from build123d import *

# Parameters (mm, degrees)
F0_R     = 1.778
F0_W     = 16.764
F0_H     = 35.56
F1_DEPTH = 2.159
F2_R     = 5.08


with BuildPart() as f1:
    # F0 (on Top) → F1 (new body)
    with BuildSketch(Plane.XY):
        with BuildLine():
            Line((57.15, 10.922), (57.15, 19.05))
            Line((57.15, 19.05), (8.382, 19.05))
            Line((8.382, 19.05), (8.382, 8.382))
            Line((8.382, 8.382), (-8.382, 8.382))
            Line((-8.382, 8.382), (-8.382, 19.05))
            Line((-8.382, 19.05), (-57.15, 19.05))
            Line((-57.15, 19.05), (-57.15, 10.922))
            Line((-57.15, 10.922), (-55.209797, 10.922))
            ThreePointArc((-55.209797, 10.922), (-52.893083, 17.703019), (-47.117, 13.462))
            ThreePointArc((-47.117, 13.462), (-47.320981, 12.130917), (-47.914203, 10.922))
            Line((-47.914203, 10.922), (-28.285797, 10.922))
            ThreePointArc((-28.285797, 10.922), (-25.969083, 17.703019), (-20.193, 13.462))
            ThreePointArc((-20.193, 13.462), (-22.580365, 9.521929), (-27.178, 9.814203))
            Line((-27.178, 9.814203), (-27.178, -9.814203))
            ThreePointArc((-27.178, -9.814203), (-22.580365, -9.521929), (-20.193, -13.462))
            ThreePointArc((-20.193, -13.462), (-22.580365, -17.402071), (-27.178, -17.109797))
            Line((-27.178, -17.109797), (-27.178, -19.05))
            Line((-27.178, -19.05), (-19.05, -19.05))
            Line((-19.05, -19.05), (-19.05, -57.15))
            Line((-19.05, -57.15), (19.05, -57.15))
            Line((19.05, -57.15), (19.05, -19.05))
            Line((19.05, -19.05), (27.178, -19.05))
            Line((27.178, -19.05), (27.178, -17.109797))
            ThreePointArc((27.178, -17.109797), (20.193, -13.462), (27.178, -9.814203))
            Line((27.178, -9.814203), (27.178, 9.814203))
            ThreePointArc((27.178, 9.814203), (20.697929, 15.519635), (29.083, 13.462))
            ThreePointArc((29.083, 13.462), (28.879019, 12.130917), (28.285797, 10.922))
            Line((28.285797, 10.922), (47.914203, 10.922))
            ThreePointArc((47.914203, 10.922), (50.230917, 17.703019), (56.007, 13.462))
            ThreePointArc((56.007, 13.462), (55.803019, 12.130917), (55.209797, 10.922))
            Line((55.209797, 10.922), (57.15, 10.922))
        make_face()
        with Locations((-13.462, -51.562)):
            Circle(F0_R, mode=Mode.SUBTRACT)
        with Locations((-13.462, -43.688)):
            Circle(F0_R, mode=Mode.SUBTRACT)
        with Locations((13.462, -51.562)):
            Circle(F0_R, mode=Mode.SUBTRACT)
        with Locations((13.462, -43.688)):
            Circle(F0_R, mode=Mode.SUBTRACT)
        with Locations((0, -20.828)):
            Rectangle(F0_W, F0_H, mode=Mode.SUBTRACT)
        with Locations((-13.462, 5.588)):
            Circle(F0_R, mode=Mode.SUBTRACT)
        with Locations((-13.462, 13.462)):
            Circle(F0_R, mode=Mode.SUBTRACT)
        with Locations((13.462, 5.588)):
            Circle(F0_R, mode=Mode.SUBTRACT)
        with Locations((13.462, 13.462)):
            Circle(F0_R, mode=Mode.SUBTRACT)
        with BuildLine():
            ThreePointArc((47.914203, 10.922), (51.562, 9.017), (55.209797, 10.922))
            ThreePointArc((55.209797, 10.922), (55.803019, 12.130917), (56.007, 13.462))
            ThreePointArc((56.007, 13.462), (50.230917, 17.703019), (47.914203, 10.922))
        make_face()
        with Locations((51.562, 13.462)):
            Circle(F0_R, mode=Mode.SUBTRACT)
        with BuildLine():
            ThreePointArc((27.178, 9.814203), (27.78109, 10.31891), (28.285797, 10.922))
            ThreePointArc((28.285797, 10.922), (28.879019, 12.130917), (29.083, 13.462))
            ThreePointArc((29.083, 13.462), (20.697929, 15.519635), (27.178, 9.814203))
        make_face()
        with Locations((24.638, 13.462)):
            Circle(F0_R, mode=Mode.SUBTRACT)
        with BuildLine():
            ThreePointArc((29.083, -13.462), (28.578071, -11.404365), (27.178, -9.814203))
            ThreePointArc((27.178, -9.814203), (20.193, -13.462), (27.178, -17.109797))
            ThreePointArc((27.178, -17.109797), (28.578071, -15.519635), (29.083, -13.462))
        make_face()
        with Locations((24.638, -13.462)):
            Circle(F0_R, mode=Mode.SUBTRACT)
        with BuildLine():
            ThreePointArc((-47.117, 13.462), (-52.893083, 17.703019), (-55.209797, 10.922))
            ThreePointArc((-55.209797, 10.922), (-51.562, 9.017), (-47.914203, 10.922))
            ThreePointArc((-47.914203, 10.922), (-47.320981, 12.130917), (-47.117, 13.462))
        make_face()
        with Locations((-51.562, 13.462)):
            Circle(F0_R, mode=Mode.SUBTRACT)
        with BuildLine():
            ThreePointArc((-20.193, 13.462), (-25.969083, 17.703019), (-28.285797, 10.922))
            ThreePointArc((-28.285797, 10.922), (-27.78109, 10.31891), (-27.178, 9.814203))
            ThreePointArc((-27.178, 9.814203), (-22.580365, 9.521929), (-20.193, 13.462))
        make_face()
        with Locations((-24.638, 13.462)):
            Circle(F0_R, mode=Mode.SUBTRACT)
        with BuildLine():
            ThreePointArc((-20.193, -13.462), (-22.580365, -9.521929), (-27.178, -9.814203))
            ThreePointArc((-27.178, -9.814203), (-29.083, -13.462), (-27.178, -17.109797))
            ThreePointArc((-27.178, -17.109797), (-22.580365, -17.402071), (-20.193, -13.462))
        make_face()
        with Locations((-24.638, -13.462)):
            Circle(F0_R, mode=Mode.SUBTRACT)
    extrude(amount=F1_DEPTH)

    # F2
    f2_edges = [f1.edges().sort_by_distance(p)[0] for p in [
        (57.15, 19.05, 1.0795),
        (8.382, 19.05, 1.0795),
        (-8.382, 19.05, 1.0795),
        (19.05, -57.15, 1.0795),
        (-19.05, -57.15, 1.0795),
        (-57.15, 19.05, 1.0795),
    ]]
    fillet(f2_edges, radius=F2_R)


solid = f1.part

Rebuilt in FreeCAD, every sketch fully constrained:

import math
import FreeCAD as App
import Part
import Sketcher
from FreeCAD import Vector
Q = App.Units.Quantity


def edges_at(feature, points):
    """Names of the edges that pass closest to the given points."""
    edges = feature.Shape.Edges
    near = lambda p: min(range(len(edges)), key=lambda i: edges[i].distToShape(Part.Vertex(*p))[0])
    return sorted({f"Edge{near(p) + 1}" for p in points})


def add_polygon(sketch, points):
    """Adds a closed chain of lines whose ends are joined by coincident constraints."""
    first, n = sketch.GeometryCount, len(points)
    for a, b in zip(points, points[1:] + points[:1]):
        sketch.addGeometry(Part.LineSegment(App.Vector(*a, 0), App.Vector(*b, 0)), False)
    for i in range(n):
        sketch.addConstraint(Sketcher.Constraint("Coincident", first + i, 2, first + (i + 1) % n, 1))

doc = App.newDocument("Part")
body = doc.addObject("PartDesign::Body", "Body")

sketch1 = body.newObject("Sketcher::SketchObject", "Sketch")
sketch1.AttachmentSupport = (doc.getObject("XY_Plane"), [""])
sketch1.MapMode = "FlatFace"
sketch1.addGeometry(Part.LineSegment(Vector(57.1, 10.9, 0), Vector(57.1, 19.1, 0)), False)
sketch1.addGeometry(Part.LineSegment(Vector(57.1, 19.1, 0), Vector(8.4, 19.1, 0)), False)
sketch1.addGeometry(Part.LineSegment(Vector(8.4, 19.1, 0), Vector(8.4, 8.4, 0)), False)
sketch1.addGeometry(Part.LineSegment(Vector(8.4, 8.4, 0), Vector(-8.4, 8.4, 0)), False)
sketch1.addGeometry(Part.LineSegment(Vector(-8.4, 8.4, 0), Vector(-8.4, 19.1, 0)), False)
sketch1.addGeometry(Part.LineSegment(Vector(-8.4, 19.1, 0), Vector(-57.1, 19.1, 0)), False)
sketch1.addGeometry(Part.LineSegment(Vector(-57.1, 19.1, 0), Vector(-57.1, 10.9, 0)), False)
sketch1.addGeometry(Part.LineSegment(Vector(-57.1, 10.9, 0), Vector(-55.2, 10.9, 0)), False)
sketch1.addGeometry(Part.ArcOfCircle(Part.Circle(Vector(-51.6, 13.5, 0), Vector(0, 0, 1), 4.4), math.radians(-145), math.radians(-35)), False)
sketch1.addGeometry(Part.LineSegment(Vector(-47.9, 10.9, 0), Vector(-28.3, 10.9, 0)), False)
sketch1.addGeometry(Part.ArcOfCircle(Part.Circle(Vector(-24.6, 13.5, 0), Vector(0, 0, 1), 4.4), math.radians(-145), math.radians(-125)), False)
sketch1.addGeometry(Part.LineSegment(Vector(-27.2, 9.8, 0), Vector(-27.2, -9.8, 0)), False)
sketch1.addGeometry(Part.ArcOfCircle(Part.Circle(Vector(-24.6, -13.5, 0), Vector(0, 0, 1), 4.4), math.radians(125), math.radians(235)), False)
sketch1.addGeometry(Part.LineSegment(Vector(-27.2, -17.1, 0), Vector(-27.2, -19.1, 0)), False)
sketch1.addGeometry(Part.LineSegment(Vector(-27.2, -19.1, 0), Vector(-19.1, -19.1, 0)), False)
sketch1.addGeometry(Part.LineSegment(Vector(-19.1, -19.1, 0), Vector(-19.1, -57.1, 0)), False)
sketch1.addGeometry(Part.LineSegment(Vector(-19.1, -57.1, 0), Vector(19.1, -57.1, 0)), False)
sketch1.addGeometry(Part.LineSegment(Vector(19.1, -57.1, 0), Vector(19.1, -19.1, 0)), False)
sketch1.addGeometry(Part.LineSegment(Vector(19.1, -19.1, 0), Vector(27.2, -19.1, 0)), False)
sketch1.addGeometry(Part.LineSegment(Vector(27.2, -19.1, 0), Vector(27.2, -17.1, 0)), False)
sketch1.addGeometry(Part.ArcOfCircle(Part.Circle(Vector(24.6, -13.5, 0), Vector(0, 0, 1), 4.4), math.radians(-55), math.radians(0)), False)
sketch1.addGeometry(Part.ArcOfCircle(Part.Circle(Vector(24.6, -13.5, 0), Vector(0, 0, 1), 4.4), math.radians(0), math.radians(55)), False)
sketch1.addGeometry(Part.LineSegment(Vector(27.2, -9.8, 0), Vector(27.2, 9.8, 0)), False)
sketch1.addGeometry(Part.ArcOfCircle(Part.Circle(Vector(24.6, 13.5, 0), Vector(0, 0, 1), 4.4), math.radians(-55), math.radians(-35)), False)
sketch1.addGeometry(Part.LineSegment(Vector(28.3, 10.9, 0), Vector(47.9, 10.9, 0)), False)
sketch1.addGeometry(Part.ArcOfCircle(Part.Circle(Vector(51.6, 13.5, 0), Vector(0, 0, 1), 4.4), math.radians(-145), math.radians(-35)), False)
sketch1.addGeometry(Part.LineSegment(Vector(55.2, 10.9, 0), Vector(57.1, 10.9, 0)), False)
sketch1.addGeometry(Part.Circle(Vector(-13.5, -51.6, 0), Vector(0, 0, 1), 1.8), False)
sketch1.addGeometry(Part.Circle(Vector(-13.5, -43.7, 0), Vector(0, 0, 1), 1.8), False)
sketch1.addGeometry(Part.Circle(Vector(13.5, -51.6, 0), Vector(0, 0, 1), 1.8), False)
sketch1.addGeometry(Part.Circle(Vector(13.5, -43.7, 0), Vector(0, 0, 1), 1.8), False)
add_polygon(sketch1, [(8.4, -38.6), (-8.4, -38.6), (-8.4, -3), (8.4, -3)])
sketch1.addGeometry(Part.Circle(Vector(-24.6, -13.5, 0), Vector(0, 0, 1), 1.8), False)
sketch1.addGeometry(Part.Circle(Vector(-51.6, 13.5, 0), Vector(0, 0, 1), 1.8), False)
sketch1.addGeometry(Part.Circle(Vector(-13.5, 5.6, 0), Vector(0, 0, 1), 1.8), False)
sketch1.addGeometry(Part.Circle(Vector(-24.6, 13.5, 0), Vector(0, 0, 1), 1.8), False)
sketch1.addGeometry(Part.Circle(Vector(-13.5, 13.5, 0), Vector(0, 0, 1), 1.8), False)
sketch1.addGeometry(Part.Circle(Vector(24.6, -13.5, 0), Vector(0, 0, 1), 1.8), False)
sketch1.addGeometry(Part.Circle(Vector(13.5, 5.6, 0), Vector(0, 0, 1), 1.8), False)
sketch1.addGeometry(Part.Circle(Vector(13.5, 13.5, 0), Vector(0, 0, 1), 1.8), False)
sketch1.addGeometry(Part.Circle(Vector(24.6, 13.5, 0), Vector(0, 0, 1), 1.8), False)
sketch1.addGeometry(Part.Circle(Vector(51.6, 13.5, 0), Vector(0, 0, 1), 1.8), False)
sketch1.addConstraint(Sketcher.Constraint("Coincident", 0, 2, 1, 1))
sketch1.addConstraint(Sketcher.Constraint("Coincident", 1, 2, 2, 1))
sketch1.addConstraint(Sketcher.Constraint("Coincident", 2, 2, 3, 1))
sketch1.addConstraint(Sketcher.Constraint("Coincident", 3, 2, 4, 1))
sketch1.addConstraint(Sketcher.Constraint("Coincident", 4, 2, 5, 1))
sketch1.addConstraint(Sketcher.Constraint("Coincident", 5, 2, 6, 1))
sketch1.addConstraint(Sketcher.Constraint("Coincident", 6, 2, 7, 1))
sketch1.addConstraint(Sketcher.Constraint("Coincident", 7, 2, 8, 1))
sketch1.addConstraint(Sketcher.Constraint("Coincident", 8, 2, 9, 1))
sketch1.addConstraint(Sketcher.Constraint("Coincident", 9, 2, 10, 1))
sketch1.addConstraint(Sketcher.Constraint("Coincident", 10, 2, 11, 1))
sketch1.addConstraint(Sketcher.Constraint("Coincident", 11, 2, 12, 1))
sketch1.addConstraint(Sketcher.Constraint("Coincident", 12, 2, 13, 1))
sketch1.addConstraint(Sketcher.Constraint("Coincident", 13, 2, 14, 1))
sketch1.addConstraint(Sketcher.Constraint("Coincident", 14, 2, 15, 1))
sketch1.addConstraint(Sketcher.Constraint("Coincident", 15, 2, 16, 1))
sketch1.addConstraint(Sketcher.Constraint("Coincident", 16, 2, 17, 1))
sketch1.addConstraint(Sketcher.Constraint("Coincident", 17, 2, 18, 1))
sketch1.addConstraint(Sketcher.Constraint("Coincident", 18, 2, 19, 1))
sketch1.addConstraint(Sketcher.Constraint("Coincident", 19, 2, 20, 1))
sketch1.addConstraint(Sketcher.Constraint("Tangent", 20, 2, 21, 1))
sketch1.addConstraint(Sketcher.Constraint("Coincident", 21, 2, 22, 1))
sketch1.addConstraint(Sketcher.Constraint("Coincident", 22, 2, 23, 1))
sketch1.addConstraint(Sketcher.Constraint("Coincident", 23, 2, 24, 1))
sketch1.addConstraint(Sketcher.Constraint("Coincident", 24, 2, 25, 1))
sketch1.addConstraint(Sketcher.Constraint("Coincident", 25, 2, 26, 1))
sketch1.addConstraint(Sketcher.Constraint("Coincident", 26, 2, 0, 1))
sketch1.addConstraint(Sketcher.Constraint("Vertical", 0))
sketch1.addConstraint(Sketcher.Constraint("Horizontal", 1))
sketch1.addConstraint(Sketcher.Constraint("Vertical", 2))
sketch1.addConstraint(Sketcher.Constraint("Horizontal", 3))
sketch1.addConstraint(Sketcher.Constraint("Vertical", 4))
sketch1.addConstraint(Sketcher.Constraint("Horizontal", 5))
sketch1.addConstraint(Sketcher.Constraint("Vertical", 6))
sketch1.addConstraint(Sketcher.Constraint("Horizontal", 7))
sketch1.addConstraint(Sketcher.Constraint("Horizontal", 9))
sketch1.addConstraint(Sketcher.Constraint("Vertical", 11))
sketch1.addConstraint(Sketcher.Constraint("Vertical", 13))
sketch1.addConstraint(Sketcher.Constraint("Horizontal", 14))
sketch1.addConstraint(Sketcher.Constraint("Vertical", 15))
sketch1.addConstraint(Sketcher.Constraint("Horizontal", 16))
sketch1.addConstraint(Sketcher.Constraint("Vertical", 17))
sketch1.addConstraint(Sketcher.Constraint("Horizontal", 18))
sketch1.addConstraint(Sketcher.Constraint("Vertical", 19))
sketch1.addConstraint(Sketcher.Constraint("Vertical", 22))
sketch1.addConstraint(Sketcher.Constraint("Horizontal", 24))
sketch1.addConstraint(Sketcher.Constraint("Horizontal", 26))
sketch1.addConstraint(Sketcher.Constraint("Horizontal", 31))
sketch1.addConstraint(Sketcher.Constraint("Vertical", 32))
sketch1.addConstraint(Sketcher.Constraint("Horizontal", 33))
sketch1.addConstraint(Sketcher.Constraint("Vertical", 34))
sketch1.addConstraint(Sketcher.Constraint("Coincident", 35, 3, 12, 3))
sketch1.addConstraint(Sketcher.Constraint("Coincident", 36, 3, 8, 3))
sketch1.addConstraint(Sketcher.Constraint("Coincident", 40, 3, 20, 3))
sketch1.addConstraint(Sketcher.Constraint("Coincident", 44, 3, 25, 3))
sketch1.addConstraint(Sketcher.Constraint("Equal", 8, 12))
sketch1.addConstraint(Sketcher.Constraint("Equal", 20, 21))
sketch1.addConstraint(Sketcher.Constraint("Equal", 10, 23))
sketch1.addConstraint(Sketcher.Constraint("Equal", 12, 25))
sketch1.addConstraint(Sketcher.Constraint("Equal", 27, 28))
sketch1.addConstraint(Sketcher.Constraint("Equal", 28, 29))
sketch1.addConstraint(Sketcher.Constraint("Equal", 29, 30))
sketch1.addConstraint(Sketcher.Constraint("Equal", 30, 35))
sketch1.addConstraint(Sketcher.Constraint("Equal", 35, 36))
sketch1.addConstraint(Sketcher.Constraint("Equal", 36, 37))
sketch1.addConstraint(Sketcher.Constraint("Equal", 37, 38))
sketch1.addConstraint(Sketcher.Constraint("Equal", 38, 39))
sketch1.addConstraint(Sketcher.Constraint("Equal", 39, 40))
sketch1.addConstraint(Sketcher.Constraint("Equal", 40, 41))
sketch1.addConstraint(Sketcher.Constraint("Equal", 41, 42))
sketch1.addConstraint(Sketcher.Constraint("Equal", 42, 43))
sketch1.addConstraint(Sketcher.Constraint("Equal", 43, 44))
sketch1.addConstraint(Sketcher.Constraint("Symmetric", 20, 3, 38, 3, -1, 1))
sketch1.addConstraint(Sketcher.Constraint("Symmetric", 12, 3, 43, 3, -1, 1))
sketch1.addConstraint(Sketcher.Constraint("Symmetric", 10, 2, 21, 2, -1, 1))
sketch1.addConstraint(Sketcher.Constraint("Symmetric", 12, 3, 20, 3, -2))
sketch1.addConstraint(Sketcher.Constraint("Symmetric", 10, 3, 23, 3, -2))
sketch1.addConstraint(Sketcher.Constraint("Symmetric", 8, 3, 25, 3, -2))
sketch1.addConstraint(Sketcher.Constraint("Symmetric", 27, 3, 29, 3, -2))
sketch1.addConstraint(Sketcher.Constraint("Symmetric", 28, 3, 30, 3, -2))
sketch1.addConstraint(Sketcher.Constraint("Symmetric", 37, 3, 41, 3, -2))
sketch1.addConstraint(Sketcher.Constraint("Symmetric", 39, 3, 42, 3, -2))
sketch1.addConstraint(Sketcher.Constraint("Symmetric", 1, 2, 4, 2, -2))
sketch1.addConstraint(Sketcher.Constraint("Symmetric", 14, 2, 17, 2, -2))
sketch1.addConstraint(Sketcher.Constraint("Symmetric", 12, 2, 19, 2, -2))
sketch1.addConstraint(Sketcher.Constraint("Symmetric", 6, 2, 26, 2, -2))
sketch1.addConstraint(Sketcher.Constraint("Horizontal", 36, 3, 38, 3))
sketch1.addConstraint(Sketcher.Constraint("Horizontal", 38, 3, 39, 3))
sketch1.addConstraint(Sketcher.Constraint("Horizontal", 7, 2, 8, 2))
sketch1.addConstraint(Sketcher.Constraint("Horizontal", 40, 3, 20, 2))
sketch1.addConstraint(Sketcher.Constraint("Horizontal", 9, 2, 23, 2))
sketch1.addConstraint(Sketcher.Constraint("Vertical", 27, 3, 28, 3))
sketch1.addConstraint(Sketcher.Constraint("Vertical", 28, 3, 37, 3))
sketch1.addConstraint(Sketcher.Constraint("Vertical", 37, 3, 39, 3))
sketch1.addConstraint(Sketcher.Constraint("Vertical", 11, 2, 12, 2))
sketch1.addConstraint(Sketcher.Constraint("Vertical", 4, 2, 31, 2))
sketch1.addConstraint(Sketcher.Constraint("Vertical", 2, 2, 33, 2))
sketch1.addConstraint(Sketcher.Constraint("Equal", 18, 0))
sketch1.addConstraint(Sketcher.Constraint("Equal", 24, 11))
sketch1.addConstraint(Sketcher.Constraint("Equal", 26, 13))
sketch1.addConstraint(Sketcher.Constraint("Equal", 16, 15))
sketch1.addConstraint(Sketcher.Constraint("Diameter", 27, Q("0.14 in")))
sketch1.addConstraint(Sketcher.Constraint("DistanceX", 16, 1, 16, 2, Q("1.5 in")))
sketch1.addConstraint(Sketcher.Constraint("DistanceY", 32, 1, 32, 2, Q("1.4 in")))
sketch1.addConstraint(Sketcher.Constraint("Radius", 8, Q("0.175 in")))
sketch1.addConstraint(Sketcher.Constraint("DistanceX", 8, 3, 20, 3, Q("2.9999999 in")))
sketch1.addConstraint(Sketcher.Constraint("DistanceX", 1, 2, 1, 1, Q("1.92 in")))
sketch1.addConstraint(Sketcher.Constraint("DistanceX", 3, 2, 3, 1, Q("0.66 in")))
sketch1.addConstraint(Sketcher.Constraint("DistanceX", 14, 1, 14, 2, Q("0.32 in")))
sketch1.addConstraint(Sketcher.Constraint("DistanceY", 2, 2, 2, 1, Q("0.42 in")))
sketch1.addConstraint(Sketcher.Constraint("DistanceY", 27, 3, 12, 3, Q("1.5 in")))
sketch1.addConstraint(Sketcher.Constraint("DistanceX", 27, 3, 21, 3, Q("1.4999999 in")))
sketch1.addConstraint(Sketcher.Constraint("DistanceX", 1, 2, 42, 3, Q("0.2 in")))
sketch1.addConstraint(Sketcher.Constraint("DistanceY", 2, 2, 42, 3, Q("0.2 in")))
sketch1.addConstraint(Sketcher.Constraint("DistanceY", 28, 3, 31, 2, Q("0.2 in")))
sketch1.addConstraint(Sketcher.Constraint("DistanceY", -1, 1, 8, 3, Q("0.53 in")))
sketch1.addConstraint(Sketcher.Constraint("DistanceY", 28, 3, -1, 1, Q("1.72 in")))
sketch1.addConstraint(Sketcher.Constraint("DistanceY", -1, 1, 37, 3, Q("0.22 in")))
sketch1.addConstraint(Sketcher.Constraint("Radius", 10, 4.444953))
pad1 = body.newObject("PartDesign::Pad", "Pad")
pad1.Profile = sketch1
pad1.Length = Q("0.085 in")
doc.recompute()

fillet = body.newObject("PartDesign::Fillet", "Fillet")
fillet.Base = (pad1, edges_at(pad1, [
    (57.15, 19.05, 1.079),
    (8.382, 19.05, 1.079),
    (-8.382, 19.05, 1.079),
    (19.05, -57.15, 1.079),
    (-19.05, -57.15, 1.079),
    (-57.15, 19.05, 1.079),
]))
fillet.Radius = Q("0.2 in")

doc.recompute()
